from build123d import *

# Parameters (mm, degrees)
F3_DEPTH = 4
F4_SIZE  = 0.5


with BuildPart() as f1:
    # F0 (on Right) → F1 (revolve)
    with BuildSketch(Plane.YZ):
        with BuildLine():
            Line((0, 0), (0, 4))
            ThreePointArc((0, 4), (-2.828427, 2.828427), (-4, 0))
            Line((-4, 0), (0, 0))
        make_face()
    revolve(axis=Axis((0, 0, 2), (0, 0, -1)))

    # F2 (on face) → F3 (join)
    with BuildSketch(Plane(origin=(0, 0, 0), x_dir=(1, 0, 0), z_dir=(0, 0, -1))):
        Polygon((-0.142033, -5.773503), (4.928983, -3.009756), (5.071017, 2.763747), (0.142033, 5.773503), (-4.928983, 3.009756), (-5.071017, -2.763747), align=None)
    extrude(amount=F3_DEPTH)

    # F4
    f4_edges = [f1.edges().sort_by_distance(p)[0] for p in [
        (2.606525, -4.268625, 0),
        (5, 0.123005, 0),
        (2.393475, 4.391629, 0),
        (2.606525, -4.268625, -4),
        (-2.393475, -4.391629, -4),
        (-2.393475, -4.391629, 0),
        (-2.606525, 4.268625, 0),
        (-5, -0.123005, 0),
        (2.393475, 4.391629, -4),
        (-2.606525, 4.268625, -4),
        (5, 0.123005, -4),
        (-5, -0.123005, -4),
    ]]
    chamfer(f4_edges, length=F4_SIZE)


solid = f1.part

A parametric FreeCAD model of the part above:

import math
import FreeCAD as App
import Part
import Sketcher

V = App.Vector


def edges_at(feature, points):
    """Names of the edges that pass closest to the given points."""
    edges = feature.Shape.Edges
    near = lambda p: min(range(len(edges)), key=lambda i: edges[i].distToShape(Part.Vertex(*p))[0])
    return sorted({f"Edge{near(p) + 1}" for p in points})

doc = App.newDocument("Part")
params = doc.addObject("Spreadsheet::Sheet", "Params")
for row, (alias, value) in enumerate([
    ("sketch1_radius", "4 mm"),
    ("revolution_angle", "360 deg"),
    ("pad1_length", "4 mm"),
    ("chamfer_size", "0.5 mm"),
], start=1):
    params.set(f"A{row}", alias)
    params.set(f"B{row}", "=" + value)
    params.setAlias(f"B{row}", alias)

body = doc.addObject("PartDesign::Body", "Body")

# Sketch on YZ plane
sketch1 = body.newObject("Sketcher::SketchObject", "Sketch")
sketch1.AttachmentSupport = (doc.getObject("YZ_Plane"), [""])
sketch1.MapMode = "FlatFace"
sketch1.addGeometry(Part.LineSegment(V(0, 0, 0), V(0, 4, 0)), False)
sketch1.addGeometry(Part.ArcOfCircle(Part.Circle(V(0, 0, 0), V(0, 0, 1), 4), math.radians(90.000006), math.radians(179.999994)), False)
sketch1.addGeometry(Part.LineSegment(V(-4, 0, 0), V(0, 0, 0)), False)
sketch1.addConstraint(Sketcher.Constraint("Coincident", 0, 2, 1, 1))
sketch1.addConstraint(Sketcher.Constraint("Coincident", 1, 2, 2, 1))
sketch1.addConstraint(Sketcher.Constraint("Coincident", 2, 2, 0, 1))
sketch1.addConstraint(Sketcher.Constraint("Vertical", 0))
sketch1.addConstraint(Sketcher.Constraint("Horizontal", 2))
sketch1.addConstraint(Sketcher.Constraint("Coincident", 1, 3, -1, 1))
sketch1.addConstraint(Sketcher.Constraint("Coincident", 2, 2, -1, 1))
sketch1.addConstraint(Sketcher.Constraint("Radius", 1, 4.0))
sketch1.setExpression("Constraints[7]", "Params.sketch1_radius")
revolution = body.newObject("PartDesign::Revolution", "Revolution")
revolution.Profile = sketch1
revolution.ReferenceAxis = (sketch1, ["V_Axis"])
revolution.setExpression("Angle", "Params.revolution_angle")

# Sketch on XY plane
sketch2 = body.newObject("Sketcher::SketchObject", "Sketch001")
sketch2.AttachmentSupport = (doc.getObject("XY_Plane"), [""])
sketch2.MapMode = "FlatFace"
sketch2.addGeometry(Part.LineSegment(V(-0.142033, 5.773503, 0), V(4.928983, 3.009756, 0)), False)
sketch2.addGeometry(Part.LineSegment(V(4.928983, 3.009756, 0), V(5.071017, -2.763747, 0)), False)
sketch2.addGeometry(Part.LineSegment(V(5.071017, -2.763747, 0), V(0.142033, -5.773503, 0)), False)
sketch2.addGeometry(Part.LineSegment(V(0.142033, -5.773503, 0), V(-4.928983, -3.009756, 0)), False)
sketch2.addGeometry(Part.LineSegment(V(-4.928983, -3.009756, 0), V(-5.071017, 2.763747, 0)), False)
sketch2.addGeometry(Part.LineSegment(V(-5.071017, 2.763747, 0), V(-0.142033, 5.773503, 0)), False)
sketch2.addConstraint(Sketcher.Constraint("Coincident", 0, 2, 1, 1))
sketch2.addConstraint(Sketcher.Constraint("Coincident", 1, 2, 2, 1))
sketch2.addConstraint(Sketcher.Constraint("Coincident", 2, 2, 3, 1))
sketch2.addConstraint(Sketcher.Constraint("Coincident", 3, 2, 4, 1))
sketch2.addConstraint(Sketcher.Constraint("Coincident", 4, 2, 5, 1))
sketch2.addConstraint(Sketcher.Constraint("Coincident", 5, 2, 0, 1))
sketch2.addConstraint(Sketcher.Constraint("Symmetric", 0, 2, 3, 2, -1, 1))
sketch2.addConstraint(Sketcher.Constraint("Symmetric", 1, 2, 4, 2, -1, 1))
sketch2.addConstraint(Sketcher.Constraint("Symmetric", 2, 2, 5, 2, -1, 1))
sketch2.addConstraint(Sketcher.Constraint("Equal", 0, 1))
sketch2.addConstraint(Sketcher.Constraint("Equal", 1, 2))
sketch2.addConstraint(Sketcher.Constraint("DistanceX", 3, 2, 1, 2, 10.0))
sketch2.addConstraint(Sketcher.Constraint("Distance", 0, 5.775249))
sketch2.addConstraint(Sketcher.Constraint("DistanceX", 2, 2, 0, 2, 4.78695))
sketch2.addConstraint(Sketcher.Constraint("DistanceY", 2, 2, 0, 2, 8.783259))
pad1 = body.newObject("PartDesign::Pad", "Pad")
pad1.Profile = sketch2
pad1.setExpression("Length", "Params.pad1_length")
pad1.Reversed = True
doc.recompute()

chamfer = body.newObject("PartDesign::Chamfer", "Chamfer")
chamfer.Base = (pad1, edges_at(pad1, [
    (2.607, -4.269, 0),
    (5, 0.123, 0),
    (2.393, 4.392, 0),
    (2.607, -4.269, -4),
    (-2.393, -4.392, -4),
    (-2.393, -4.392, 0),
    (-2.607, 4.269, 0),
    (-5, -0.123, 0),
    (2.393, 4.392, -4),
    (-2.607, 4.269, -4),
    (5, 0.123, -4),
    (-5, -0.123, -4),
]))
chamfer.setExpression("Size", "Params.chamfer_size")

doc.recompute()
